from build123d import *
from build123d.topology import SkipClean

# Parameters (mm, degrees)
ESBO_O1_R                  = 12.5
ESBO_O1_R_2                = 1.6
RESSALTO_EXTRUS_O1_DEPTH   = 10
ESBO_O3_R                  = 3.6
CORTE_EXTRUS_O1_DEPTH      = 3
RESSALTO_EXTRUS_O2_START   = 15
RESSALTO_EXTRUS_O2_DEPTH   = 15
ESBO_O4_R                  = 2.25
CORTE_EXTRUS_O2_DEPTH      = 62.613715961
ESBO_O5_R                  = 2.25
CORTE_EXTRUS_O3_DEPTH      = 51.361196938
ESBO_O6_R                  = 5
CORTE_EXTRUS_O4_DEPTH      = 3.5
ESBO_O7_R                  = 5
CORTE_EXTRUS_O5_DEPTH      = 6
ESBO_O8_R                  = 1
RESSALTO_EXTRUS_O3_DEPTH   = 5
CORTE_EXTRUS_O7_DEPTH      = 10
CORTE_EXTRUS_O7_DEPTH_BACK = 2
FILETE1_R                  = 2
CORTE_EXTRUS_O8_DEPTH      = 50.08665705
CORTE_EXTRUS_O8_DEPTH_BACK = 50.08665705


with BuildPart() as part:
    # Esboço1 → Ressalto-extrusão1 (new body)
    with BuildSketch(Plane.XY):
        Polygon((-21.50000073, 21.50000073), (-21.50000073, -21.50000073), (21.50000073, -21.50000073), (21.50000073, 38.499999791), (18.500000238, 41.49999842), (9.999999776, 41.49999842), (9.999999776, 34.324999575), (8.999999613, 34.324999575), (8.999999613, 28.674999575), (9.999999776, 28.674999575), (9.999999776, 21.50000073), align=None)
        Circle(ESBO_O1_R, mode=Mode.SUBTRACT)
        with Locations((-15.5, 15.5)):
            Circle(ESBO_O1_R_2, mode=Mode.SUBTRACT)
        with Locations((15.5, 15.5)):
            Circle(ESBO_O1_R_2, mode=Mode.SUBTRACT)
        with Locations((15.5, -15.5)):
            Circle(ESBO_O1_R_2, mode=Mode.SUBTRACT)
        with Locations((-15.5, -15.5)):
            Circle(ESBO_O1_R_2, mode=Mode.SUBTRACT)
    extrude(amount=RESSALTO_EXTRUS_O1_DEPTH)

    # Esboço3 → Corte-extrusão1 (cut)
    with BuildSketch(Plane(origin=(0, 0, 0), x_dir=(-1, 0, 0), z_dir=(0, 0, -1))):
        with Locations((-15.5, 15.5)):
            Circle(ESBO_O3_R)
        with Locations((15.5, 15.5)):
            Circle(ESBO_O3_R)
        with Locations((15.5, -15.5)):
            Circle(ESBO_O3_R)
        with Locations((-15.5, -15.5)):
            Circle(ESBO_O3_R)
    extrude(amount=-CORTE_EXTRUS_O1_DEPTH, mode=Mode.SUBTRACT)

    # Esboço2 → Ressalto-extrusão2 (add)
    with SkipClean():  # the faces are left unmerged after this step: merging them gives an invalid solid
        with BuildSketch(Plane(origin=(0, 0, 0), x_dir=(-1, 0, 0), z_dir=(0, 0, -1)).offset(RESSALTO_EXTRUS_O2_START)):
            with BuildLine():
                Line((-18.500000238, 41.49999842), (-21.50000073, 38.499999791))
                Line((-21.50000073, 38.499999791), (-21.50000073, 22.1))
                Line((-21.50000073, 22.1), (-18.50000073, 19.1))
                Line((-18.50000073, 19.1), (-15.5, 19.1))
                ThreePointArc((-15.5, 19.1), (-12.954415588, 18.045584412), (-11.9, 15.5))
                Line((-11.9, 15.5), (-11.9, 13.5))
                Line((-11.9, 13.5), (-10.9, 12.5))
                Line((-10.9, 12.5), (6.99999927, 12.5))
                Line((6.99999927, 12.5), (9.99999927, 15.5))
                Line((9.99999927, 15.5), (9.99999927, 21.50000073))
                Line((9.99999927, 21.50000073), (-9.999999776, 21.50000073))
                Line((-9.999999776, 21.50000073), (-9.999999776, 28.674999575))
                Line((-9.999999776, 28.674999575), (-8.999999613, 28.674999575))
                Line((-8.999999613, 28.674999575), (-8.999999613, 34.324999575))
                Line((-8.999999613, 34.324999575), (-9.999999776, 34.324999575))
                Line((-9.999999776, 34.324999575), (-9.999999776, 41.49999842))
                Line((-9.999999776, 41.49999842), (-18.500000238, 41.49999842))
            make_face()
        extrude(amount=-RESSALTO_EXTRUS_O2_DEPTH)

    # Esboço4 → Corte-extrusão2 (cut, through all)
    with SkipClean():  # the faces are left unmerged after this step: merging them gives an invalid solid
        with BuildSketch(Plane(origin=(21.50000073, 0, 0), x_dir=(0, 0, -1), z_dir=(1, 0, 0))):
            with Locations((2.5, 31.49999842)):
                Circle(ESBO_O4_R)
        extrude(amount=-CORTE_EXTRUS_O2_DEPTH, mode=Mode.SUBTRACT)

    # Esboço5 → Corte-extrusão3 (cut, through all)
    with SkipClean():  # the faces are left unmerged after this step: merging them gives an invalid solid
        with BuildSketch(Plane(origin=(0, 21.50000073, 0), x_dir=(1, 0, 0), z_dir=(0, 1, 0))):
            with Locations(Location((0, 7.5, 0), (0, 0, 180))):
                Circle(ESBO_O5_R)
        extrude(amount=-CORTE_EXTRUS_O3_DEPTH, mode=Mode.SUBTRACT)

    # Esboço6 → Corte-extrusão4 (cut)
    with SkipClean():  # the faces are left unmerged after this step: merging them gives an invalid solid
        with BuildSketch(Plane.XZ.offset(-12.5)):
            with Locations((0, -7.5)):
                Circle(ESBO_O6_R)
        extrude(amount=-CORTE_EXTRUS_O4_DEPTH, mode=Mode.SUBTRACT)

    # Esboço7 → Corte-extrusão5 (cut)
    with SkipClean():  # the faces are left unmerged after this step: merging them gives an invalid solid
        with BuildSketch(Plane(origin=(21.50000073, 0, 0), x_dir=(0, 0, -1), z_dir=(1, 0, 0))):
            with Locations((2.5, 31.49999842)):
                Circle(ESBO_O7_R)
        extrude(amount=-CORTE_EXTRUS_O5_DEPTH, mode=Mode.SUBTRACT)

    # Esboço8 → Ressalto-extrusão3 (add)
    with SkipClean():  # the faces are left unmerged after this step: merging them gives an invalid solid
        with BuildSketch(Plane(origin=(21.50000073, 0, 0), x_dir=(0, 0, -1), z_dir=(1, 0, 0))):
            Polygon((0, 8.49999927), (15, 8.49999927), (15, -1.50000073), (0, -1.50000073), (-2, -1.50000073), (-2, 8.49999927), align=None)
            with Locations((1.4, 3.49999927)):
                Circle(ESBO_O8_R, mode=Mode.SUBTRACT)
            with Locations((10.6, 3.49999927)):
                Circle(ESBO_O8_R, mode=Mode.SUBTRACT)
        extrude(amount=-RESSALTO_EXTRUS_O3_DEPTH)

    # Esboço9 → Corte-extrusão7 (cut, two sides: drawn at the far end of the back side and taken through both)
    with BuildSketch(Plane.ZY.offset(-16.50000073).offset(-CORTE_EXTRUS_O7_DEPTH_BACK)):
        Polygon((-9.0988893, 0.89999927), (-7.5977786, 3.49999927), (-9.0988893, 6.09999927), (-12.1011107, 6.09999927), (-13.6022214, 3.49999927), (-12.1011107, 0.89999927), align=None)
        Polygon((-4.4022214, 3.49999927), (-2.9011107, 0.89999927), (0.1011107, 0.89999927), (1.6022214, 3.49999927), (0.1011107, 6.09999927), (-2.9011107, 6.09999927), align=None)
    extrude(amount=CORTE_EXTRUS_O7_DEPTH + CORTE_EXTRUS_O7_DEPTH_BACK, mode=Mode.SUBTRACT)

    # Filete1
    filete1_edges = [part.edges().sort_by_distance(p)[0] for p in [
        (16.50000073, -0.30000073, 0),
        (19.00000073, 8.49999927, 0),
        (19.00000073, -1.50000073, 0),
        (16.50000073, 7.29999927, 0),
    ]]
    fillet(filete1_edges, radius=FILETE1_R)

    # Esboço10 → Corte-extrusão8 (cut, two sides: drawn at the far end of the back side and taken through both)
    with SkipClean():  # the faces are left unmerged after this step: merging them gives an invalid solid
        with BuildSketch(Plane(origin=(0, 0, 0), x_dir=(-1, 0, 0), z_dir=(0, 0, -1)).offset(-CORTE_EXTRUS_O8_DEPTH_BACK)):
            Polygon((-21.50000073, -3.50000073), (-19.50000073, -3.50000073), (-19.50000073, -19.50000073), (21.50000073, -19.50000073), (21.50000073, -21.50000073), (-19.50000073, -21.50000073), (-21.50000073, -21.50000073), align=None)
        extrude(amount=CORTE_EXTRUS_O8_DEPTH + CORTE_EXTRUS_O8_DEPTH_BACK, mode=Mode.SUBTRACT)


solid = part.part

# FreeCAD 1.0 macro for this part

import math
import FreeCAD as App
import Part
import Sketcher
from FreeCAD import Vector
Q = App.Units.Quantity


def edges_at(feature, points):
    """Names of the edges that pass closest to the given points."""
    edges = feature.Shape.Edges
    near = lambda p: min(range(len(edges)), key=lambda i: edges[i].distToShape(Part.Vertex(*p))[0])
    return sorted({f"Edge{near(p) + 1}" for p in points})


def add_polygon(sketch, points):
    """Adds a closed chain of lines whose ends are joined by coincident constraints."""
    first, n = sketch.GeometryCount, len(points)
    for a, b in zip(points, points[1:] + points[:1]):
        sketch.addGeometry(Part.LineSegment(App.Vector(*a, 0), App.Vector(*b, 0)), False)
    for i in range(n):
        sketch.addConstraint(Sketcher.Constraint("Coincident", first + i, 2, first + (i + 1) % n, 1))

doc = App.newDocument("Part")
body = doc.addObject("PartDesign::Body", "Body")

sketch1 = body.newObject("Sketcher::SketchObject", "Sketch")
sketch1.AttachmentSupport = (doc.getObject("XY_Plane"), [""])
sketch1.MapMode = "FlatFace"
add_polygon(sketch1, [(-21.500001, 21.500001), (-21.500001, -21.500001), (21.500001, -21.500001), (21.500001, 38.5), (18.5, 41.499998), (10, 41.499998), (10, 34.325), (9, 34.325), (9, 28.675), (10, 28.675), (10, 21.500001)])
sketch1.addGeometry(Part.Circle(Vector(-15.5, -15.5, 0), Vector(0, 0, 1), 1.6), False)
sketch1.addGeometry(Part.Circle(Vector(15.5, -15.5, 0), Vector(0, 0, 1), 1.6), False)
sketch1.addGeometry(Part.Circle(Vector(-15.5, 15.5, 0), Vector(0, 0, 1), 1.6), False)
sketch1.addGeometry(Part.Circle(Vector(0, 0, 0), Vector(0, 0, 1), 12.5), False)
sketch1.addGeometry(Part.Circle(Vector(15.5, 15.5, 0), Vector(0, 0, 1), 1.6), False)
sketch1.addConstraint([
    Sketcher.Constraint("Vertical", 0),
    Sketcher.Constraint("Horizontal", 1),
    Sketcher.Constraint("Vertical", 2),
    Sketcher.Constraint("Horizontal", 4),
    Sketcher.Constraint("Vertical", 5),
    Sketcher.Constraint("Horizontal", 6),
    Sketcher.Constraint("Vertical", 7),
    Sketcher.Constraint("Horizontal", 8),
    Sketcher.Constraint("Vertical", 9),
    Sketcher.Constraint("Horizontal", 10),
    Sketcher.Constraint("Coincident", 14, 3, -1, 1),
    Sketcher.Constraint("Equal", 11, 12),
    Sketcher.Constraint("Equal", 12, 13),
    Sketcher.Constraint("Equal", 13, 15),
    Sketcher.Constraint("Symmetric", 12, 3, 13, 3, -1, 1),
    Sketcher.Constraint("Symmetric", 11, 3, 15, 3, -1, 1),
    Sketcher.Constraint("Symmetric", 1, 2, 10, 2, -1, 1),
    Sketcher.Constraint("Symmetric", 11, 3, 12, 3, -2),
    Sketcher.Constraint("Vertical", 5, 2, 8, 2),
    Sketcher.Constraint("Equal", 1, 0),
    Sketcher.Constraint("Equal", 5, 9),
    Sketcher.Constraint("Diameter", 14, 25.0),
    Sketcher.Constraint("Diameter", 11, 3.2),
    Sketcher.Constraint("DistanceX", 1, 1, 1, 2, 43.000001),
    Sketcher.Constraint("DistanceX", 6, 2, 6, 1, 1.0),
    Sketcher.Constraint("DistanceY", 2, 1, 2, 2, 60.000001),
    Sketcher.Constraint("Angle", 3, Q("135.000018 deg")),
    Sketcher.Constraint("DistanceX", 4, 2, 4, 1, 8.5),
    Sketcher.Constraint("DistanceX", 10, 2, 10, 1, 31.500001),
    Sketcher.Constraint("DistanceX", 11, 3, 12, 3, 31.0),
    Sketcher.Constraint("DistanceY", 11, 3, 13, 3, 31.0),
    Sketcher.Constraint("DistanceY", 7, 2, 7, 1, 5.65),
])
pad1 = body.newObject("PartDesign::Pad", "Pad")
pad1.Profile = sketch1
pad1.Length = 10

sketch2 = body.newObject("Sketcher::SketchObject", "Sketch001")
sketch2.AttachmentSupport = (doc.getObject("XY_Plane"), [""])
sketch2.MapMode = "FlatFace"
sketch2.addGeometry([
    Part.Circle(Vector(15.5, 15.5, 0), Vector(0, 0, 1), 3.6),
    Part.Circle(Vector(-15.5, 15.5, 0), Vector(0, 0, 1), 3.6),
    Part.Circle(Vector(-15.5, -15.5, 0), Vector(0, 0, 1), 3.6),
    Part.Circle(Vector(15.5, -15.5, 0), Vector(0, 0, 1), 3.6),
], False)
sketch2.addConstraint([
    Sketcher.Constraint("Equal", 0, 1),
    Sketcher.Constraint("Equal", 1, 2),
    Sketcher.Constraint("Equal", 2, 3),
    Sketcher.Constraint("Symmetric", 0, 3, 2, 3, -1, 1),
    Sketcher.Constraint("Symmetric", 1, 3, 3, 3, -1, 1),
    Sketcher.Constraint("Symmetric", 0, 3, 1, 3, -2),
    Sketcher.Constraint("Diameter", 0, 7.2),
    Sketcher.Constraint("DistanceX", 1, 3, 0, 3, 31.0),
    Sketcher.Constraint("DistanceY", 2, 3, 1, 3, 31.0),
])
pocket1 = body.newObject("PartDesign::Pocket", "Pocket")
pocket1.Profile = sketch2
pocket1.Length = 3
pocket1.Reversed = True

sketch3 = body.newObject("Sketcher::SketchObject", "Sketch002")
sketch3.AttachmentSupport = (doc.getObject("XY_Plane"), [""])
sketch3.MapMode = "FlatFace"
sketch3.AttachmentOffset = App.Placement(Vector(0, 0, -15), App.Rotation())
sketch3.addGeometry([
    Part.LineSegment(Vector(18.5, 41.499998, 0), Vector(21.500001, 38.5, 0)),
    Part.LineSegment(Vector(21.500001, 38.5, 0), Vector(21.500001, 22.1, 0)),
    Part.LineSegment(Vector(21.500001, 22.1, 0), Vector(18.500001, 19.1, 0)),
    Part.LineSegment(Vector(18.500001, 19.1, 0), Vector(15.5, 19.1, 0)),
    Part.ArcOfCircle(Part.Circle(Vector(15.5, 15.5, 0), Vector(0, 0, 1), 3.6), math.radians(90), math.radians(180)),
    Part.LineSegment(Vector(11.9, 15.5, 0), Vector(11.9, 13.5, 0)),
    Part.LineSegment(Vector(11.9, 13.5, 0), Vector(10.9, 12.5, 0)),
    Part.LineSegment(Vector(10.9, 12.5, 0), Vector(-6.999999, 12.5, 0)),
    Part.LineSegment(Vector(-6.999999, 12.5, 0), Vector(-9.999999, 15.5, 0)),
    Part.LineSegment(Vector(-9.999999, 15.5, 0), Vector(-9.999999, 21.500001, 0)),
    Part.LineSegment(Vector(-9.999999, 21.500001, 0), Vector(10, 21.500001, 0)),
    Part.LineSegment(Vector(10, 21.500001, 0), Vector(10, 28.675, 0)),
    Part.LineSegment(Vector(10, 28.675, 0), Vector(9, 28.675, 0)),
    Part.LineSegment(Vector(9, 28.675, 0), Vector(9, 34.325, 0)),
    Part.LineSegment(Vector(9, 34.325, 0), Vector(10, 34.325, 0)),
    Part.LineSegment(Vector(10, 34.325, 0), Vector(10, 41.499998, 0)),
    Part.LineSegment(Vector(10, 41.499998, 0), Vector(18.5, 41.499998, 0)),
], False)
sketch3.addConstraint([
    Sketcher.Constraint("Coincident", 0, 2, 1, 1),
    Sketcher.Constraint("Coincident", 1, 2, 2, 1),
    Sketcher.Constraint("Coincident", 2, 2, 3, 1),
    Sketcher.Constraint("Tangent", 3, 2, 4, 1),
    Sketcher.Constraint("Tangent", 4, 2, 5, 1),
    Sketcher.Constraint("Coincident", 5, 2, 6, 1),
    Sketcher.Constraint("Coincident", 6, 2, 7, 1),
    Sketcher.Constraint("Coincident", 7, 2, 8, 1),
    Sketcher.Constraint("Coincident", 8, 2, 9, 1),
    Sketcher.Constraint("Coincident", 9, 2, 10, 1),
    Sketcher.Constraint("Coincident", 10, 2, 11, 1),
    Sketcher.Constraint("Coincident", 11, 2, 12, 1),
    Sketcher.Constraint("Coincident", 12, 2, 13, 1),
    Sketcher.Constraint("Coincident", 13, 2, 14, 1),
    Sketcher.Constraint("Coincident", 14, 2, 15, 1),
    Sketcher.Constraint("Coincident", 15, 2, 16, 1),
    Sketcher.Constraint("Coincident", 16, 2, 0, 1),
    Sketcher.Constraint("Vertical", 1),
    Sketcher.Constraint("Horizontal", 3),
    Sketcher.Constraint("Vertical", 5),
    Sketcher.Constraint("Horizontal", 7),
    Sketcher.Constraint("Vertical", 9),
    Sketcher.Constraint("Horizontal", 10),
    Sketcher.Constraint("Vertical", 11),
    Sketcher.Constraint("Horizontal", 12),
    Sketcher.Constraint("Vertical", 13),
    Sketcher.Constraint("Horizontal", 14),
    Sketcher.Constraint("Vertical", 15),
    Sketcher.Constraint("Horizontal", 16),
    Sketcher.Constraint("Perpendicular", 0, 2),
    Sketcher.Constraint("Parallel", 2, 6),
    Sketcher.Constraint("Perpendicular", 6, 8),
    Sketcher.Constraint("Horizontal", 4, 2, 8, 2),
    Sketcher.Constraint("Vertical", 11, 2, 14, 2),
    Sketcher.Constraint("Vertical", 2, 2, 16, 2),
    Sketcher.Constraint("Equal", 11, 15),
    Sketcher.Constraint("Equal", 0, 2),
    Sketcher.Constraint("Equal", 2, 8),
    Sketcher.Constraint("Radius", 4, 3.6),
    Sketcher.Constraint("DistanceX", 3, 2, 3, 1, 3.000001),
    Sketcher.Constraint("DistanceX", 10, 1, 10, 2, 19.999999),
    Sketcher.Constraint("DistanceX", 12, 2, 12, 1, 1.0),
    Sketcher.Constraint("DistanceY", 5, 2, 5, 1, 2.0),
    Sketcher.Constraint("DistanceY", 9, 1, 9, 2, 6.000001),
    Sketcher.Constraint("DistanceX", 7, 2, 7, 1, 17.899999),
    Sketcher.Constraint("DistanceX", 16, 1, 16, 2, 8.5),
    Sketcher.Constraint("DistanceY", 1, 2, 1, 1, 16.4),
    Sketcher.Constraint("DistanceX", 7, 2, -1, 1, 6.999999),
    Sketcher.Constraint("DistanceY", 13, 1, 13, 2, 5.65),
    Sketcher.Constraint("DistanceY", -1, 1, 4, 3, 15.5),
])
pad2 = body.newObject("PartDesign::Pad", "Pad001")
pad2.Profile = sketch3
pad2.Length = 15

sketch4 = body.newObject("Sketcher::SketchObject", "Sketch003")
sketch4.AttachmentSupport = (doc.getObject("YZ_Plane"), [""])
sketch4.MapMode = "FlatFace"
sketch4.AttachmentOffset = App.Placement(Vector(0, 0, 21.500001), App.Rotation())
sketch4.addGeometry(Part.Circle(Vector(31.499998, -2.5, 0), Vector(0, 0, 1), 2.25), False)
sketch4.addConstraint([
    Sketcher.Constraint("Diameter", 0, 4.5),
    Sketcher.Constraint("DistanceX", -1, 1, 0, 3, 31.499998),
    Sketcher.Constraint("DistanceY", 0, 3, -1, 1, 2.5),
])
pocket2 = body.newObject("PartDesign::Pocket", "Pocket001")
pocket2.Profile = sketch4
pocket2.Type = "ThroughAll"

sketch5 = body.newObject("Sketcher::SketchObject", "Sketch004")
sketch5.AttachmentSupport = (doc.getObject("XZ_Plane"), [""])
sketch5.MapMode = "FlatFace"
sketch5.AttachmentOffset = App.Placement(Vector(0, 0, -21.500001), App.Rotation())
sketch5.addGeometry(Part.Circle(Vector(0, -7.5, 0), Vector(0, 0, 1), 2.25), False)
sketch5.addConstraint([
    Sketcher.Constraint("PointOnObject", 0, 3, -2),
    Sketcher.Constraint("Diameter", 0, 4.5),
    Sketcher.Constraint("DistanceY", 0, 3, -1, 1, 7.5),
])
pocket3 = body.newObject("PartDesign::Pocket", "Pocket002")
pocket3.Profile = sketch5
pocket3.Type = "ThroughAll"
pocket3.Reversed = True

sketch6 = body.newObject("Sketcher::SketchObject", "Sketch005")
sketch6.AttachmentSupport = (doc.getObject("XZ_Plane"), [""])
sketch6.MapMode = "FlatFace"
sketch6.AttachmentOffset = App.Placement(Vector(0, 0, -12.5), App.Rotation())
sketch6.addGeometry(Part.Circle(Vector(0, -7.5, 0), Vector(0, 0, 1), 5), False)
sketch6.addConstraint([
    Sketcher.Constraint("PointOnObject", 0, 3, -2),
    Sketcher.Constraint("Diameter", 0, 10.0),
    Sketcher.Constraint("DistanceY", 0, 3, -1, 1, 7.5),
])
pocket4 = body.newObject("PartDesign::Pocket", "Pocket003")
pocket4.Profile = sketch6
pocket4.Length = 3.5

sketch7 = body.newObject("Sketcher::SketchObject", "Sketch006")
sketch7.AttachmentSupport = (doc.getObject("YZ_Plane"), [""])
sketch7.MapMode = "FlatFace"
sketch7.AttachmentOffset = App.Placement(Vector(0, 0, 21.500001), App.Rotation())
sketch7.addGeometry(Part.Circle(Vector(31.499998, -2.5, 0), Vector(0, 0, 1), 5), False)
sketch7.addConstraint([
    Sketcher.Constraint("Diameter", 0, 10.0),
    Sketcher.Constraint("DistanceX", -1, 1, 0, 3, 31.499998),
    Sketcher.Constraint("DistanceY", 0, 3, -1, 1, 2.5),
])
pocket5 = body.newObject("PartDesign::Pocket", "Pocket004")
pocket5.Profile = sketch7
pocket5.Length = 6

sketch8 = body.newObject("Sketcher::SketchObject", "Sketch007")
sketch8.AttachmentSupport = (doc.getObject("YZ_Plane"), [""])
sketch8.MapMode = "FlatFace"
sketch8.AttachmentOffset = App.Placement(Vector(0, 0, 21.500001), App.Rotation())
add_polygon(sketch8, [(8.499999, -15), (8.499999, 2), (-1.500001, 2), (-1.500001, -15)])
sketch8.addGeometry(Part.Circle(Vector(3.499999, -10.6, 0), Vector(0, 0, 1), 1), False)
sketch8.addGeometry(Part.Circle(Vector(3.499999, -1.4, 0), Vector(0, 0, 1), 1), False)
sketch8.addConstraint([
    Sketcher.Constraint("Vertical", 0),
    Sketcher.Constraint("Horizontal", 1),
    Sketcher.Constraint("Vertical", 2),
    Sketcher.Constraint("Horizontal", 3),
    Sketcher.Constraint("Equal", 4, 5),
    Sketcher.Constraint("Vertical", 4, 3, 5, 3),
    Sketcher.Constraint("Diameter", 4, 2.0),
    Sketcher.Constraint("DistanceX", 1, 2, 1, 1, 10.0),
    Sketcher.Constraint("DistanceY", 0, 1, 0, 2, 17.0),
    Sketcher.Constraint("DistanceY", -1, 1, 0, 2, 2.0),
    Sketcher.Constraint("DistanceX", 5, 3, 0, 2, 5.0),
    Sketcher.Constraint("DistanceX", -1, 1, 4, 3, 3.499999),
    Sketcher.Constraint("DistanceY", 4, 3, -1, 1, 10.6),
    Sketcher.Constraint("DistanceY", 5, 3, -1, 1, 1.4),
])
pad3 = body.newObject("PartDesign::Pad", "Pad002")
pad3.Profile = sketch8
pad3.Length = 5
pad3.Reversed = True

sketch9 = body.newObject("Sketcher::SketchObject", "Sketch008")
sketch9.AttachmentSupport = (doc.getObject("YZ_Plane"), [""])
sketch9.MapMode = "FlatFace"
sketch9.AttachmentOffset = App.Placement(Vector(0, 0, 16.500001), App.Rotation())
add_polygon(sketch9, [(0.899999, -9.098889), (3.499999, -7.597779), (6.099999, -9.098889), (6.099999, -12.101111), (3.499999, -13.602221), (0.899999, -12.101111)])
add_polygon(sketch9, [(3.499999, -4.402221), (0.899999, -2.901111), (0.899999, 0.101111), (3.499999, 1.602221), (6.099999, 0.101111), (6.099999, -2.901111)])
sketch9.addConstraint([
    Sketcher.Constraint("Vertical", 2),
    Sketcher.Constraint("Vertical", 5),
    Sketcher.Constraint("Vertical", 7),
    Sketcher.Constraint("Vertical", 10),
    Sketcher.Constraint("Parallel", 0, 3),
    Sketcher.Constraint("Parallel", 1, 4),
    Sketcher.Constraint("Parallel", 4, 6),
    Sketcher.Constraint("Parallel", 3, 8),
    Sketcher.Constraint("Parallel", 6, 9),
    Sketcher.Constraint("Parallel", 8, 11),
    Sketcher.Constraint("Horizontal", 2, 2, 4, 2),
    Sketcher.Constraint("Horizontal", 1, 2, 5, 2),
    Sketcher.Constraint("Horizontal", 7, 2, 9, 2),
    Sketcher.Constraint("Horizontal", 6, 2, 10, 2),
    Sketcher.Constraint("Vertical", 0, 2, 3, 2),
    Sketcher.Constraint("Vertical", 5, 2, 6, 2),
    Sketcher.Constraint("Vertical", 3, 2, 8, 2),
    Sketcher.Constraint("Equal", 5, 7),
    Sketcher.Constraint("Angle", 0, Q("30 deg")),
    Sketcher.Constraint("DistanceX", -1, 1, 0, 2, 3.499999),
    Sketcher.Constraint("DistanceX", -1, 1, 1, 2, 6.099999),
    Sketcher.Constraint("DistanceY", 4, 2, 6, 2, 9.2),
    Sketcher.Constraint("DistanceY", 2, 2, 2, 1, 3.002221),
    Sketcher.Constraint("DistanceY", 0, 2, -1, 1, 7.597779),
])
pocket6 = body.newObject("PartDesign::Pocket", "Pocket005")
pocket6.Profile = sketch9
pocket6.Type = "TwoLengths"
pocket6.Length = 10
pocket6.Length2 = 2
doc.recompute()

fillet = body.newObject("PartDesign::Fillet", "Fillet")
fillet.Base = (pocket6, edges_at(pocket6, [
    (16.5, -0.3, 0),
    (19, 8.5, 0),
    (19, -1.5, 0),
    (16.5, 7.3, 0),
]))
fillet.Radius = 2

sketch10 = body.newObject("Sketcher::SketchObject", "Sketch009")
sketch10.AttachmentSupport = (doc.getObject("XY_Plane"), [""])
sketch10.MapMode = "FlatFace"
add_polygon(sketch10, [(19.500001, -3.500001), (21.500001, -3.500001), (21.500001, -21.500001), (-21.500001, -21.500001), (-21.500001, -19.500001), (19.500001, -19.500001)])
sketch10.addConstraint([
    Sketcher.Constraint("Horizontal", 0),
    Sketcher.Constraint("Vertical", 1),
    Sketcher.Constraint("Horizontal", 2),
    Sketcher.Constraint("Vertical", 3),
    Sketcher.Constraint("Horizontal", 4),
    Sketcher.Constraint("Vertical", 5),
    Sketcher.Constraint("Equal", 0, 3),
    Sketcher.Constraint("DistanceX", 0, 1, 0, 2, 2.0),
    Sketcher.Constraint("DistanceX", 2, 2, 2, 1, 43.000001),
    Sketcher.Constraint("DistanceY", 1, 2, 1, 1, 18.0),
    Sketcher.Constraint("DistanceX", -1, 1, 0, 2, 21.500001),
    Sketcher.Constraint("DistanceY", 0, 2, -1, 1, 3.500001),
])
pocket7 = body.newObject("PartDesign::Pocket", "Pocket006")
pocket7.Profile = sketch10
pocket7.Type = "ThroughAll"
pocket7.Midplane = True

doc.recompute()
